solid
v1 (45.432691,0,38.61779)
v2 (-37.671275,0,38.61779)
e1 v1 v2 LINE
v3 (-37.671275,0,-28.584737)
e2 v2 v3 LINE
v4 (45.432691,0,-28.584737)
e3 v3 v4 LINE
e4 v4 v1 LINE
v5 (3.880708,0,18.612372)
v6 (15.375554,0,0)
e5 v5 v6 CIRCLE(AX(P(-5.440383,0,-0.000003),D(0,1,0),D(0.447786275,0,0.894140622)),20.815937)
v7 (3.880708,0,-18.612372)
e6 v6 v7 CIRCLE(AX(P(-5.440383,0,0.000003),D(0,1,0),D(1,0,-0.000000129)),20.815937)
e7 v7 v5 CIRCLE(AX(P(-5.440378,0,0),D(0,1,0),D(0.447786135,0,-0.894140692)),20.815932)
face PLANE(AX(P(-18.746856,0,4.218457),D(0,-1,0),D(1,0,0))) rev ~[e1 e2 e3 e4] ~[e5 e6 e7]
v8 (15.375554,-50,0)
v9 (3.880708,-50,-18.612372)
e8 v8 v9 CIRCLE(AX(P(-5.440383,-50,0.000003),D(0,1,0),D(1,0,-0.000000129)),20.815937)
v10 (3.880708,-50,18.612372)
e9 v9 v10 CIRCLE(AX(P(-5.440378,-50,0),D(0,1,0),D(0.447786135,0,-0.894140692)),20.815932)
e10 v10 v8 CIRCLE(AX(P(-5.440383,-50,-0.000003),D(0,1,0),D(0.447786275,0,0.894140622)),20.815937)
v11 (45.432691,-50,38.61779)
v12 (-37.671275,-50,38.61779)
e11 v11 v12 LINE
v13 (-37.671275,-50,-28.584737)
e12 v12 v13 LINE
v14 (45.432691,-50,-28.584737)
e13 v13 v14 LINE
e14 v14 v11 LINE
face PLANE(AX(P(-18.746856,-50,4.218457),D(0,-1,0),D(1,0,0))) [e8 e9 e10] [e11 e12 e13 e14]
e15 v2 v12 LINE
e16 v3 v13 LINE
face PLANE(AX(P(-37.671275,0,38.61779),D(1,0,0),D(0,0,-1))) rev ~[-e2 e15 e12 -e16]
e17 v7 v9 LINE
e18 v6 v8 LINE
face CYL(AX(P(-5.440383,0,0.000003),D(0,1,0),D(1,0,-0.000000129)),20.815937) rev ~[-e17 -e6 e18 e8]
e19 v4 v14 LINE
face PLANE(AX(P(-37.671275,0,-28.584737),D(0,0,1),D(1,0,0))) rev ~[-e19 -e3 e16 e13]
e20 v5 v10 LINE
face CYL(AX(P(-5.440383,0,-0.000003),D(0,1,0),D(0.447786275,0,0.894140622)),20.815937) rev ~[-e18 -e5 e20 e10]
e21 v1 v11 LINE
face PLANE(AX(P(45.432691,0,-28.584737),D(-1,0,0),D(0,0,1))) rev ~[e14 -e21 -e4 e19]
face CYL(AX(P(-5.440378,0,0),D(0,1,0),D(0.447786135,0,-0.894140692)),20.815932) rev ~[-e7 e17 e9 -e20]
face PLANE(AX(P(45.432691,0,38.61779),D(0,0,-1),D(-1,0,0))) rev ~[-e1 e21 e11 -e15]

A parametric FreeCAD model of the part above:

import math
import FreeCAD as App
import Part
import Sketcher

V = App.Vector
Q = App.Units.Quantity


def add_polygon(sketch, points):
    """Adds a closed chain of lines whose ends are joined by coincident constraints."""
    first, n = sketch.GeometryCount, len(points)
    for a, b in zip(points, points[1:] + points[:1]):
        sketch.addGeometry(Part.LineSegment(App.Vector(*a, 0), App.Vector(*b, 0)), False)
    for i in range(n):
        sketch.addConstraint(Sketcher.Constraint("Coincident", first + i, 2, first + (i + 1) % n, 1))

doc = App.newDocument("Part")
body = doc.addObject("PartDesign::Body", "Body")

# Sketch on XZ plane
sketch1 = body.newObject("Sketcher::SketchObject", "Sketch")
sketch1.AttachmentSupport = (doc.getObject("XZ_Plane"), [""])
sketch1.MapMode = "FlatFace"
add_polygon(sketch1, [(-38, 39), (-38, -29), (45, -29), (45, 39)])  # lines 0-3
sketch1.addGeometry(Part.ArcOfCircle(Part.Circle(V(-5, 0, 0), V(0, 0, 1), 21), math.radians(63), math.radians(297)), False)  # 4
sketch1.addGeometry(Part.ArcOfCircle(Part.Circle(V(-5, 0, 0), V(0, 0, 1), 21), math.radians(0), math.radians(63)), False)  # 5
sketch1.addGeometry(Part.ArcOfCircle(Part.Circle(V(-5, 0, 0), V(0, 0, 1), 21), math.radians(-63), math.radians(0)), False)  # 6
sketch1.addConstraint(Sketcher.Constraint("Tangent", 4, 1, 5, 2))
sketch1.addConstraint(Sketcher.Constraint("Tangent", 5, 1, 6, 2))
sketch1.addConstraint(Sketcher.Constraint("Tangent", 6, 1, 4, 2))
sketch1.addConstraint(Sketcher.Constraint("Vertical", 0))
sketch1.addConstraint(Sketcher.Constraint("Horizontal", 1))
sketch1.addConstraint(Sketcher.Constraint("Vertical", 2))
sketch1.addConstraint(Sketcher.Constraint("Horizontal", 3))
sketch1.addConstraint(Sketcher.Constraint("Symmetric", 4, 1, 6, 1, -1))
sketch1.addConstraint(Sketcher.Constraint("PointOnObject", 5, 1, -1))
sketch1.addConstraint(Sketcher.Constraint("Radius", 4, Q("20.815932 mm")))
sketch1.addConstraint(Sketcher.Constraint("DistanceX", 1, 1, 1, 2, Q("83.103966 mm")))
sketch1.addConstraint(Sketcher.Constraint("DistanceY", 0, 2, 0, 1, Q("67.202527 mm")))
sketch1.addConstraint(Sketcher.Constraint("DistanceX", -1, 1, 1, 2, Q("45.432691 mm")))
sketch1.addConstraint(Sketcher.Constraint("DistanceY", -1, 1, 2, 2, Q("38.61779 mm")))
sketch1.addConstraint(Sketcher.Constraint("DistanceX", -1, 1, 4, 1, Q("3.880708 mm")))
sketch1.addConstraint(Sketcher.Constraint("DistanceX", 4, 3, 1, 2, Q("50.873069 mm")))
pad1 = body.newObject("PartDesign::Pad", "Pad")
pad1.Profile = sketch1
pad1.Length = 50

doc.recompute()
